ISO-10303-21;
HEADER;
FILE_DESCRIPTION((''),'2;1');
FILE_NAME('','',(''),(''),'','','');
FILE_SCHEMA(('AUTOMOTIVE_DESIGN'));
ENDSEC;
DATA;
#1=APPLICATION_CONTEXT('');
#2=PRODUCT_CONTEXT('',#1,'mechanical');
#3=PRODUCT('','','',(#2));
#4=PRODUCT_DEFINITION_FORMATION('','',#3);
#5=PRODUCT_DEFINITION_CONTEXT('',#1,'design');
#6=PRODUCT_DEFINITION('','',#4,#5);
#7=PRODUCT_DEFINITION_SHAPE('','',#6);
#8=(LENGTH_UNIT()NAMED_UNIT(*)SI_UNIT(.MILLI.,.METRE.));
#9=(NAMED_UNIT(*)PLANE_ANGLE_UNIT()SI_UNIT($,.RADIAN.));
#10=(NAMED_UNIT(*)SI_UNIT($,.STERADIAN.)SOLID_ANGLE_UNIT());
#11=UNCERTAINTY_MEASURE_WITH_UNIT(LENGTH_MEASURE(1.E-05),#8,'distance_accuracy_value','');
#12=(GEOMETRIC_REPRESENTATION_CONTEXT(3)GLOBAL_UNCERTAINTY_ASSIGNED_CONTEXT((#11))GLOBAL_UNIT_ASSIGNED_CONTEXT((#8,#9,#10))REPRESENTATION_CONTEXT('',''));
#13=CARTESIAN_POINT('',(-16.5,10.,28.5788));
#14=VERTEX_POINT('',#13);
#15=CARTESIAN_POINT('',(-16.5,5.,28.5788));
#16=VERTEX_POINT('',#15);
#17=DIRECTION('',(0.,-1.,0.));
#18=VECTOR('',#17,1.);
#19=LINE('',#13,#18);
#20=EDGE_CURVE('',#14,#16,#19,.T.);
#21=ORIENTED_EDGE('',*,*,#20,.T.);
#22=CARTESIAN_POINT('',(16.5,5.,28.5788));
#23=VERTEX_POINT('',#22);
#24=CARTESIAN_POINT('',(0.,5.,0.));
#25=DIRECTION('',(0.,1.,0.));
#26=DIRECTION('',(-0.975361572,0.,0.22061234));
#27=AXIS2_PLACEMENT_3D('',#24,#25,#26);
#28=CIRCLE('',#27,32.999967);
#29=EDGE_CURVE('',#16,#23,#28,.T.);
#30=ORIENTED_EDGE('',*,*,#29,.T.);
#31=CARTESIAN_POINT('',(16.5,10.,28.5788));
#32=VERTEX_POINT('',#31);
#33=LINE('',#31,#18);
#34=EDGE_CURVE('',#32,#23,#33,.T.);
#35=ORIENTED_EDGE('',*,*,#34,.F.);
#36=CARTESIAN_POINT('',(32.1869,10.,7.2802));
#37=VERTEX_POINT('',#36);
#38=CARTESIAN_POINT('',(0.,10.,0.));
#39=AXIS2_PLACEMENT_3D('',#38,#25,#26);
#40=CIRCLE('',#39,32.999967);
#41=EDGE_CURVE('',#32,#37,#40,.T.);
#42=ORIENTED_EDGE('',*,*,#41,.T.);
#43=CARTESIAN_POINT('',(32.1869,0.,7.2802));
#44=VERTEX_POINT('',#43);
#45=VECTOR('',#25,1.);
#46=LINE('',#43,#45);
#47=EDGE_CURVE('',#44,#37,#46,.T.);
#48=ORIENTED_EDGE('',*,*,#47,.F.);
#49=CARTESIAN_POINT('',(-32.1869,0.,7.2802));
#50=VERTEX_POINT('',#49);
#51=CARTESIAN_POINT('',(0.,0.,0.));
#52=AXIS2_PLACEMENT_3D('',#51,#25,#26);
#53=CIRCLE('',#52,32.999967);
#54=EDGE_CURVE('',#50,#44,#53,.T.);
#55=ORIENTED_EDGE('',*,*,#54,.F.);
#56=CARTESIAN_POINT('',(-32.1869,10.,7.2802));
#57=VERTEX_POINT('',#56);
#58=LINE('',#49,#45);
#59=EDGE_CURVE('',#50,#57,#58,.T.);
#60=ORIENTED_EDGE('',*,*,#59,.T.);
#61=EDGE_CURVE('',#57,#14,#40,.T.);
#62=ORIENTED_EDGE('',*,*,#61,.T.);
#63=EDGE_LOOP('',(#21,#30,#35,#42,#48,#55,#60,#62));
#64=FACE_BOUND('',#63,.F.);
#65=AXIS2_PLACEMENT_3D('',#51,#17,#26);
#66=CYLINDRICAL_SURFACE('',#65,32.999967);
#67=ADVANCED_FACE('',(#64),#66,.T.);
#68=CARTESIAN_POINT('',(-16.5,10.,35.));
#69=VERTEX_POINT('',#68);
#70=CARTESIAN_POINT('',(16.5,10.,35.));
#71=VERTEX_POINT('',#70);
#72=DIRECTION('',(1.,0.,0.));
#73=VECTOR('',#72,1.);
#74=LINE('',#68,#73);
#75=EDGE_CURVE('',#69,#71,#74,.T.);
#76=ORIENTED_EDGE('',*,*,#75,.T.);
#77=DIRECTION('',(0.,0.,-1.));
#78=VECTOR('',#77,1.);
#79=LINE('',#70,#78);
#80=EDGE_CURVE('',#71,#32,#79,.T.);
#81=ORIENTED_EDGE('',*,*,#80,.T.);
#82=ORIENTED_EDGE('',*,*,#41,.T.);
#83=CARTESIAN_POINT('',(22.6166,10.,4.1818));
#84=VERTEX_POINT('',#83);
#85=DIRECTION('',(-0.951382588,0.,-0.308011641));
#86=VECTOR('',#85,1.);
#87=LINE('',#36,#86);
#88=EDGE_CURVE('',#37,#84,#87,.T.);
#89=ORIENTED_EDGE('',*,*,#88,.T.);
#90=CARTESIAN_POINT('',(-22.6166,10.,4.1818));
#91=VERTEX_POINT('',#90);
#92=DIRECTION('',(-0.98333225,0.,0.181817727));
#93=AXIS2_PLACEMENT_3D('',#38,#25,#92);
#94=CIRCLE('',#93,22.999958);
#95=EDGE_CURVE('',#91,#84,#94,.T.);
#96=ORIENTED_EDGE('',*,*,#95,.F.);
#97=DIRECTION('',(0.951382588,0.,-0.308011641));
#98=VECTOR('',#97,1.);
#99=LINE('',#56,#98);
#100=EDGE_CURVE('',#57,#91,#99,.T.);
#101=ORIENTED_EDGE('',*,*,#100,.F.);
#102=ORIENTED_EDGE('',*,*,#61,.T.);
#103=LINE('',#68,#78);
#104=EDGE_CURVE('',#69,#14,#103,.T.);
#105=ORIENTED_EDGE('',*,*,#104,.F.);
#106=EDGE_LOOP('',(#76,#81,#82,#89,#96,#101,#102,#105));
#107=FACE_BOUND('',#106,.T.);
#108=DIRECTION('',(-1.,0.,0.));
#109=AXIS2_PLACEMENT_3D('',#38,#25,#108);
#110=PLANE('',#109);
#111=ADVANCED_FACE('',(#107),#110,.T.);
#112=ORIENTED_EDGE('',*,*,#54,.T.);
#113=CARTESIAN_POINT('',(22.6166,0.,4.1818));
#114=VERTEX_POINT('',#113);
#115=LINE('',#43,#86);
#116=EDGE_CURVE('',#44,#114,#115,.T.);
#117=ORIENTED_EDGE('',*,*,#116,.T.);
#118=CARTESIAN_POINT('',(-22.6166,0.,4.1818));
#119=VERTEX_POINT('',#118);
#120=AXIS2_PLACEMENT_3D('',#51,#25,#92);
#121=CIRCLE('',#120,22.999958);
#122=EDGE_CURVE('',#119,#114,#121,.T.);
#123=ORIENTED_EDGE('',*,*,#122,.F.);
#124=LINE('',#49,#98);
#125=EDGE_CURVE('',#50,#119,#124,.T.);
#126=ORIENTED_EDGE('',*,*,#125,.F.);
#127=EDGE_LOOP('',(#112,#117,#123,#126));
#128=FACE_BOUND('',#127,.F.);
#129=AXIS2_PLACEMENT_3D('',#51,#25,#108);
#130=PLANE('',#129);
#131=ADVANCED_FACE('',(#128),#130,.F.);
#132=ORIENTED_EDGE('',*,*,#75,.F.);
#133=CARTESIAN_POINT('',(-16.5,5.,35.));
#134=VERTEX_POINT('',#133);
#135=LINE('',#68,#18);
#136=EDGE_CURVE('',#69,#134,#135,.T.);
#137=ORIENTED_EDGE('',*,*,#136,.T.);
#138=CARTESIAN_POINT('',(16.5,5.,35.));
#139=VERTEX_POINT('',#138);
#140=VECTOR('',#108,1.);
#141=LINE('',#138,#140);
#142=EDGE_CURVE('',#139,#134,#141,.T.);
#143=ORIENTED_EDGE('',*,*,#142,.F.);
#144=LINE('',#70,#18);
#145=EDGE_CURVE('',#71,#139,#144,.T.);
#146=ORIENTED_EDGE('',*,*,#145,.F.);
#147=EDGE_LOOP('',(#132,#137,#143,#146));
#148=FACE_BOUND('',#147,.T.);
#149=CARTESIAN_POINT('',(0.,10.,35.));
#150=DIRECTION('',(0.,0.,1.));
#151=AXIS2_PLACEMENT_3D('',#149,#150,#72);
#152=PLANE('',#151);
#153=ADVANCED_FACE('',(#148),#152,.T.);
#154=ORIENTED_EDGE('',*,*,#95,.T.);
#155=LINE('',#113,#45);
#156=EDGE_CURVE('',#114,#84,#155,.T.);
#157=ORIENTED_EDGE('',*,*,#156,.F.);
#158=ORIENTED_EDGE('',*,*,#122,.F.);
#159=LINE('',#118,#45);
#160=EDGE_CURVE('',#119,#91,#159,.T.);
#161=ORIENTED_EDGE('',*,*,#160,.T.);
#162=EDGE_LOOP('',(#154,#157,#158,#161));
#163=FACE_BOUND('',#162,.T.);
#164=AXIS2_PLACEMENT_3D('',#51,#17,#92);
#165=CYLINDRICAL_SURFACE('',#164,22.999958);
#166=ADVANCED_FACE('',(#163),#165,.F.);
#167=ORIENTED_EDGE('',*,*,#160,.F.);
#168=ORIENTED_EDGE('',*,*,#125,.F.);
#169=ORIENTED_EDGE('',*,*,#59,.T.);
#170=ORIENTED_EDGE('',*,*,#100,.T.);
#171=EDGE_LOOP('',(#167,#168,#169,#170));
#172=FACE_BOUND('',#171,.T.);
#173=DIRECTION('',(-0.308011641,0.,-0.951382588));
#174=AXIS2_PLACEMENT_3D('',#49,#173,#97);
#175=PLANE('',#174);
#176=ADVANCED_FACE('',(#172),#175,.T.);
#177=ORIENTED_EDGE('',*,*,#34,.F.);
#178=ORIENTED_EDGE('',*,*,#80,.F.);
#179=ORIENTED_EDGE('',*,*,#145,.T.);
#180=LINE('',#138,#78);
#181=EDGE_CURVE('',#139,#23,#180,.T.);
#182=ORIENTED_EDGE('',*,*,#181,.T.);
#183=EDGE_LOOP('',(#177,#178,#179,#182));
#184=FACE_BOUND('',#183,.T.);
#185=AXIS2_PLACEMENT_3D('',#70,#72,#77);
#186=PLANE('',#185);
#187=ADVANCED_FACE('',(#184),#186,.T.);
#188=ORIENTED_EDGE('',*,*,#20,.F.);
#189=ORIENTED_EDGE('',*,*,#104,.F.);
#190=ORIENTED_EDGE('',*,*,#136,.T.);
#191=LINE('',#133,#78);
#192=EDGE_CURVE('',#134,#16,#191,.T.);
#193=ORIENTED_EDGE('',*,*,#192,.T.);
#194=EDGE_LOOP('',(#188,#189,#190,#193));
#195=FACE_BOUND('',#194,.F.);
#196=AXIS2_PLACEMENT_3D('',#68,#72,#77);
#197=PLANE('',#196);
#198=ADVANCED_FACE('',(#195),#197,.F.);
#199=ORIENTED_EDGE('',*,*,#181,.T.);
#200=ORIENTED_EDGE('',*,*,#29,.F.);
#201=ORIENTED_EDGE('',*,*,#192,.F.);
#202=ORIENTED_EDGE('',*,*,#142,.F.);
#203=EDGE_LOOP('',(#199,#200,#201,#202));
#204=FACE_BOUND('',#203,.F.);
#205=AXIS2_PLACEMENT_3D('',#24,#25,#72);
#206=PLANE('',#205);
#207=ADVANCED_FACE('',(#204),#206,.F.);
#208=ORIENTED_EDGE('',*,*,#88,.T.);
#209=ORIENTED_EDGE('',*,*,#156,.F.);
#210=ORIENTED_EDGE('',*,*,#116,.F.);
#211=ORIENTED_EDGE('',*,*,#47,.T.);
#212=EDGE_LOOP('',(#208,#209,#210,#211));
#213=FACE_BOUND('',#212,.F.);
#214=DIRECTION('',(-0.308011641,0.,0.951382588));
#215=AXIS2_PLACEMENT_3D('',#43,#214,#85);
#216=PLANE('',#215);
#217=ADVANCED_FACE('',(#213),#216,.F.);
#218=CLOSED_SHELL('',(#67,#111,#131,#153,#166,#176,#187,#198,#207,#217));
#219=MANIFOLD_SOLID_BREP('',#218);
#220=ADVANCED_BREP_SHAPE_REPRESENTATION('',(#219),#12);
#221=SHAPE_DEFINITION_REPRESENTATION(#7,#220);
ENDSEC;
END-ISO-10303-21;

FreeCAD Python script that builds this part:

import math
import FreeCAD as App
import Part
import Sketcher

V = App.Vector
Q = App.Units.Quantity

doc = App.newDocument("Part")
body = doc.addObject("PartDesign::Body", "Body")

# Sketch on XZ plane
sketch1 = body.newObject("Sketcher::SketchObject", "Sketch")
sketch1.AttachmentSupport = (doc.getObject("XZ_Plane"), [""])
sketch1.MapMode = "FlatFace"
sketch1.addGeometry(Part.LineSegment(V(-23, 4, 0), V(-32, 7, 0)), False)
sketch1.addGeometry(Part.ArcOfCircle(Part.Circle(V(0, 0, 0), V(0, 0, 1), 33), math.radians(13), math.radians(167)), False)
sketch1.addGeometry(Part.LineSegment(V(32, 7, 0), V(23, 4, 0)), False)
sketch1.addGeometry(Part.ArcOfCircle(Part.Circle(V(0, 0, 0), V(0, 0, 1), 23), math.radians(10), math.radians(170)), False)
sketch1.addConstraint(Sketcher.Constraint("Coincident", 0, 2, 1, 2))
sketch1.addConstraint(Sketcher.Constraint("Coincident", 1, 1, 2, 1))
sketch1.addConstraint(Sketcher.Constraint("Coincident", 2, 2, 3, 1))
sketch1.addConstraint(Sketcher.Constraint("Coincident", 3, 2, 0, 1))
sketch1.addConstraint(Sketcher.Constraint("Coincident", 1, 3, -1, 1))
sketch1.addConstraint(Sketcher.Constraint("Coincident", 3, 3, -1, 1))
sketch1.addConstraint(Sketcher.Constraint("Horizontal", 0, 2, 1, 1))
sketch1.addConstraint(Sketcher.Constraint("Horizontal", 2, 2, 3, 2))
sketch1.addConstraint(Sketcher.Constraint("Radius", 1, Q("33 mm")))
sketch1.addConstraint(Sketcher.Constraint("Radius", 3, Q("23 mm")))
sketch1.addConstraint(Sketcher.Constraint("Angle", 0, Q("162.0606 deg")))
sketch1.addConstraint(Sketcher.Constraint("DistanceX", 0, 2, -1, 1, Q("32.187 mm")))
pad1 = body.newObject("PartDesign::Pad", "Pad")
pad1.Profile = sketch1
pad1.Length = 10
pad1.Reversed = True

# Sketch on XZ plane
sketch2 = body.newObject("Sketcher::SketchObject", "Sketch001")
sketch2.AttachmentSupport = (doc.getObject("XZ_Plane"), [""])
sketch2.MapMode = "FlatFace"
sketch2.AttachmentOffset = App.Placement(V(0, 0, -10), App.Rotation())
sketch2.addGeometry(Part.ArcOfCircle(Part.Circle(V(0, 0, 0), V(0, 0, 1), 33), math.radians(60), math.radians(120)), False)
sketch2.addGeometry(Part.LineSegment(V(-16, 29, 0), V(-16, 35, 0)), False)
sketch2.addGeometry(Part.LineSegment(V(-16, 35, 0), V(16, 35, 0)), False)
sketch2.addGeometry(Part.LineSegment(V(16, 35, 0), V(16, 29, 0)), False)
sketch2.addConstraint(Sketcher.Constraint("Coincident", 0, 2, 1, 1))
sketch2.addConstraint(Sketcher.Constraint("Coincident", 1, 2, 2, 1))
sketch2.addConstraint(Sketcher.Constraint("Coincident", 2, 2, 3, 1))
sketch2.addConstraint(Sketcher.Constraint("Coincident", 3, 2, 0, 1))
sketch2.addConstraint(Sketcher.Constraint("Vertical", 1))
sketch2.addConstraint(Sketcher.Constraint("Horizontal", 2))
sketch2.addConstraint(Sketcher.Constraint("Vertical", 3))
sketch2.addConstraint(Sketcher.Constraint("Coincident", 0, 3, -1, 1))
sketch2.addConstraint(Sketcher.Constraint("Horizontal", 0, 2, 3, 2))
sketch2.addConstraint(Sketcher.Constraint("Radius", 0, Q("33 mm")))
sketch2.addConstraint(Sketcher.Constraint("DistanceX", 2, 1, 2, 2, Q("33 mm")))
sketch2.addConstraint(Sketcher.Constraint("DistanceY", -1, 1, 1, 2, Q("35 mm")))
pad2 = body.newObject("PartDesign::Pad", "Pad001")
pad2.Profile = sketch2
pad2.Length = 5

doc.recompute()
